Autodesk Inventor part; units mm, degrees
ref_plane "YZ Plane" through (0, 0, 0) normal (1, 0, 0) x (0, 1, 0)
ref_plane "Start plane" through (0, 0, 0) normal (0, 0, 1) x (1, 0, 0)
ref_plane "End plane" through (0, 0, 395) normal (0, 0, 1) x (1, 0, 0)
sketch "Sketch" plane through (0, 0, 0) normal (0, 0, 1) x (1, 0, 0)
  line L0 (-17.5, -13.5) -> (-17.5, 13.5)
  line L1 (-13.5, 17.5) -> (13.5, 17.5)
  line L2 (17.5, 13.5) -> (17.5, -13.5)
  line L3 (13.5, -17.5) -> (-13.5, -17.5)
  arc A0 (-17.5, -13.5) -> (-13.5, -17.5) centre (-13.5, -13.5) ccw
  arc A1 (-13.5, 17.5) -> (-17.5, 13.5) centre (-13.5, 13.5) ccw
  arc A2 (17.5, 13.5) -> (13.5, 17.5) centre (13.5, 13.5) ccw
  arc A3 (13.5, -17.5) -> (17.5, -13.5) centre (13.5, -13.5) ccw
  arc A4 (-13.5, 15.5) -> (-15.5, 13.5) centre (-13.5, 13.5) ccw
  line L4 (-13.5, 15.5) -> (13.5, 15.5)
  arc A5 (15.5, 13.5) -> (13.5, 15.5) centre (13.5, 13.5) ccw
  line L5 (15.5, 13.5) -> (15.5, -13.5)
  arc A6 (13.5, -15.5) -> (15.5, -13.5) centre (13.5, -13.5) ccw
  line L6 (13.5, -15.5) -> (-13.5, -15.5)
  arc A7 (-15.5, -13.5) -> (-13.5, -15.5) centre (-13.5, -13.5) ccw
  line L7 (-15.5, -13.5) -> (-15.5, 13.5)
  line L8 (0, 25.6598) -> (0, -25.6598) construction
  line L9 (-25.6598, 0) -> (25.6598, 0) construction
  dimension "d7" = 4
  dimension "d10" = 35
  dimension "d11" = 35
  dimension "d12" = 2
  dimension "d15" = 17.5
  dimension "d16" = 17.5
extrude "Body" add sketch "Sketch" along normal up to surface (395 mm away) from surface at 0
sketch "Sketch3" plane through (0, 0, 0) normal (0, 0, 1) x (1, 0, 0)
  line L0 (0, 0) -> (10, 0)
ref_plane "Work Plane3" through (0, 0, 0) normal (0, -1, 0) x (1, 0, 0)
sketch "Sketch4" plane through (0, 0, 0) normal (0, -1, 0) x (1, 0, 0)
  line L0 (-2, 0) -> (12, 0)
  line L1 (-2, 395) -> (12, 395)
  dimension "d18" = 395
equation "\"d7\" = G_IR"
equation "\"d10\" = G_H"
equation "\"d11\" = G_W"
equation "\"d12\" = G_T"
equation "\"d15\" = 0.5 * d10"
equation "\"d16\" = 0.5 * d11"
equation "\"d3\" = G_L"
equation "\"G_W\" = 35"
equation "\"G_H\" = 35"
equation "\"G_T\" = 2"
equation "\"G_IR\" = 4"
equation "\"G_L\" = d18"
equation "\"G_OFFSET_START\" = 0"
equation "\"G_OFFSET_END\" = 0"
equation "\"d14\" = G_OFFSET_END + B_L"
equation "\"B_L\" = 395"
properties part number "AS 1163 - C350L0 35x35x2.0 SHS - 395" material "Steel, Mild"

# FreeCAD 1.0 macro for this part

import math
import FreeCAD as App
import Part
import Sketcher

doc = App.newDocument("Part")
params = doc.addObject("Spreadsheet::Sheet", "Params")
for row, (alias, value) in enumerate([
    ("sketch1_radius", "4 mm"),
    ("sketch1_radius2", "2 mm"),
    ("pad1_length", "395 mm"),
], start=1):
    params.set(f"A{row}", alias)
    params.set(f"B{row}", "=" + value)
    params.setAlias(f"B{row}", alias)

body = doc.addObject("PartDesign::Body", "Body")

sketch1 = body.newObject("Sketcher::SketchObject", "Sketch")
sketch1.AttachmentSupport = (doc.getObject("XY_Plane"), [""])
sketch1.MapMode = "FlatFace"
sketch1.addGeometry([
    Part.LineSegment(App.Vector(-17.5, 13.5, 0), App.Vector(-17.5, -13.5, 0)),
    Part.ArcOfCircle(Part.Circle(App.Vector(-13.5, -13.5, 0), App.Vector(0, 0, 1), 4), math.radians(180), math.radians(270)),
    Part.LineSegment(App.Vector(-13.5, -17.5, 0), App.Vector(13.5, -17.5, 0)),
    Part.ArcOfCircle(Part.Circle(App.Vector(13.5, -13.5, 0), App.Vector(0, 0, 1), 4), math.radians(-90), math.radians(0)),
    Part.LineSegment(App.Vector(17.5, -13.5, 0), App.Vector(17.5, 13.5, 0)),
    Part.ArcOfCircle(Part.Circle(App.Vector(13.5, 13.5, 0), App.Vector(0, 0, 1), 4), math.radians(0), math.radians(90)),
    Part.LineSegment(App.Vector(13.5, 17.5, 0), App.Vector(-13.5, 17.5, 0)),
    Part.ArcOfCircle(Part.Circle(App.Vector(-13.5, 13.5, 0), App.Vector(0, 0, 1), 4), math.radians(90), math.radians(180)),
    Part.ArcOfCircle(Part.Circle(App.Vector(-13.5, 13.5, 0), App.Vector(0, 0, 1), 2), math.radians(90), math.radians(180)),
    Part.LineSegment(App.Vector(-13.5, 15.5, 0), App.Vector(13.5, 15.5, 0)),
    Part.ArcOfCircle(Part.Circle(App.Vector(13.5, 13.5, 0), App.Vector(0, 0, 1), 2), math.radians(0), math.radians(90)),
    Part.LineSegment(App.Vector(15.5, 13.5, 0), App.Vector(15.5, -13.5, 0)),
    Part.ArcOfCircle(Part.Circle(App.Vector(13.5, -13.5, 0), App.Vector(0, 0, 1), 2), math.radians(-90), math.radians(0)),
    Part.LineSegment(App.Vector(13.5, -15.5, 0), App.Vector(-13.5, -15.5, 0)),
    Part.ArcOfCircle(Part.Circle(App.Vector(-13.5, -13.5, 0), App.Vector(0, 0, 1), 2), math.radians(180), math.radians(270)),
    Part.LineSegment(App.Vector(-15.5, -13.5, 0), App.Vector(-15.5, 13.5, 0)),
], False)
sketch1.addConstraint([
    Sketcher.Constraint("Tangent", 0, 2, 1, 1),
    Sketcher.Constraint("Tangent", 1, 2, 2, 1),
    Sketcher.Constraint("Tangent", 2, 2, 3, 1),
    Sketcher.Constraint("Tangent", 3, 2, 4, 1),
    Sketcher.Constraint("Tangent", 4, 2, 5, 1),
    Sketcher.Constraint("Tangent", 5, 2, 6, 1),
    Sketcher.Constraint("Tangent", 6, 2, 7, 1),
    Sketcher.Constraint("Tangent", 7, 2, 0, 1),
    Sketcher.Constraint("Tangent", 8, 1, 9, 1),
    Sketcher.Constraint("Tangent", 9, 2, 10, 2),
    Sketcher.Constraint("Tangent", 10, 1, 11, 1),
    Sketcher.Constraint("Tangent", 11, 2, 12, 2),
    Sketcher.Constraint("Tangent", 12, 1, 13, 1),
    Sketcher.Constraint("Tangent", 13, 2, 14, 2),
    Sketcher.Constraint("Tangent", 14, 1, 15, 1),
    Sketcher.Constraint("Tangent", 15, 2, 8, 2),
    Sketcher.Constraint("Vertical", 0),
    Sketcher.Constraint("Horizontal", 2),
    Sketcher.Constraint("Vertical", 4),
    Sketcher.Constraint("Horizontal", 6),
    Sketcher.Constraint("Horizontal", 9),
    Sketcher.Constraint("Vertical", 11),
    Sketcher.Constraint("Horizontal", 13),
    Sketcher.Constraint("Vertical", 15),
    Sketcher.Constraint("Coincident", 8, 3, 7, 3),
    Sketcher.Constraint("Coincident", 10, 3, 5, 3),
    Sketcher.Constraint("Coincident", 12, 3, 3, 3),
    Sketcher.Constraint("Equal", 1, 3),
    Sketcher.Constraint("Equal", 3, 5),
    Sketcher.Constraint("Equal", 5, 7),
    Sketcher.Constraint("Equal", 12, 14),
    Sketcher.Constraint("Symmetric", 1, 3, 5, 3, -1, 1),
    Sketcher.Constraint("Equal", 13, 0),
    Sketcher.Constraint("Radius", 1, 4.0),
    Sketcher.Constraint("Radius", 8, 2.0),
    Sketcher.Constraint("DistanceX", 0, 2, -1, 1, 17.5),
])
sketch1.setExpression("Constraints[33]", "Params.sketch1_radius")
sketch1.setExpression("Constraints[34]", "Params.sketch1_radius2")
pad1 = body.newObject("PartDesign::Pad", "Pad")
pad1.Profile = sketch1
pad1.setExpression("Length", "Params.pad1_length")

doc.recompute()
